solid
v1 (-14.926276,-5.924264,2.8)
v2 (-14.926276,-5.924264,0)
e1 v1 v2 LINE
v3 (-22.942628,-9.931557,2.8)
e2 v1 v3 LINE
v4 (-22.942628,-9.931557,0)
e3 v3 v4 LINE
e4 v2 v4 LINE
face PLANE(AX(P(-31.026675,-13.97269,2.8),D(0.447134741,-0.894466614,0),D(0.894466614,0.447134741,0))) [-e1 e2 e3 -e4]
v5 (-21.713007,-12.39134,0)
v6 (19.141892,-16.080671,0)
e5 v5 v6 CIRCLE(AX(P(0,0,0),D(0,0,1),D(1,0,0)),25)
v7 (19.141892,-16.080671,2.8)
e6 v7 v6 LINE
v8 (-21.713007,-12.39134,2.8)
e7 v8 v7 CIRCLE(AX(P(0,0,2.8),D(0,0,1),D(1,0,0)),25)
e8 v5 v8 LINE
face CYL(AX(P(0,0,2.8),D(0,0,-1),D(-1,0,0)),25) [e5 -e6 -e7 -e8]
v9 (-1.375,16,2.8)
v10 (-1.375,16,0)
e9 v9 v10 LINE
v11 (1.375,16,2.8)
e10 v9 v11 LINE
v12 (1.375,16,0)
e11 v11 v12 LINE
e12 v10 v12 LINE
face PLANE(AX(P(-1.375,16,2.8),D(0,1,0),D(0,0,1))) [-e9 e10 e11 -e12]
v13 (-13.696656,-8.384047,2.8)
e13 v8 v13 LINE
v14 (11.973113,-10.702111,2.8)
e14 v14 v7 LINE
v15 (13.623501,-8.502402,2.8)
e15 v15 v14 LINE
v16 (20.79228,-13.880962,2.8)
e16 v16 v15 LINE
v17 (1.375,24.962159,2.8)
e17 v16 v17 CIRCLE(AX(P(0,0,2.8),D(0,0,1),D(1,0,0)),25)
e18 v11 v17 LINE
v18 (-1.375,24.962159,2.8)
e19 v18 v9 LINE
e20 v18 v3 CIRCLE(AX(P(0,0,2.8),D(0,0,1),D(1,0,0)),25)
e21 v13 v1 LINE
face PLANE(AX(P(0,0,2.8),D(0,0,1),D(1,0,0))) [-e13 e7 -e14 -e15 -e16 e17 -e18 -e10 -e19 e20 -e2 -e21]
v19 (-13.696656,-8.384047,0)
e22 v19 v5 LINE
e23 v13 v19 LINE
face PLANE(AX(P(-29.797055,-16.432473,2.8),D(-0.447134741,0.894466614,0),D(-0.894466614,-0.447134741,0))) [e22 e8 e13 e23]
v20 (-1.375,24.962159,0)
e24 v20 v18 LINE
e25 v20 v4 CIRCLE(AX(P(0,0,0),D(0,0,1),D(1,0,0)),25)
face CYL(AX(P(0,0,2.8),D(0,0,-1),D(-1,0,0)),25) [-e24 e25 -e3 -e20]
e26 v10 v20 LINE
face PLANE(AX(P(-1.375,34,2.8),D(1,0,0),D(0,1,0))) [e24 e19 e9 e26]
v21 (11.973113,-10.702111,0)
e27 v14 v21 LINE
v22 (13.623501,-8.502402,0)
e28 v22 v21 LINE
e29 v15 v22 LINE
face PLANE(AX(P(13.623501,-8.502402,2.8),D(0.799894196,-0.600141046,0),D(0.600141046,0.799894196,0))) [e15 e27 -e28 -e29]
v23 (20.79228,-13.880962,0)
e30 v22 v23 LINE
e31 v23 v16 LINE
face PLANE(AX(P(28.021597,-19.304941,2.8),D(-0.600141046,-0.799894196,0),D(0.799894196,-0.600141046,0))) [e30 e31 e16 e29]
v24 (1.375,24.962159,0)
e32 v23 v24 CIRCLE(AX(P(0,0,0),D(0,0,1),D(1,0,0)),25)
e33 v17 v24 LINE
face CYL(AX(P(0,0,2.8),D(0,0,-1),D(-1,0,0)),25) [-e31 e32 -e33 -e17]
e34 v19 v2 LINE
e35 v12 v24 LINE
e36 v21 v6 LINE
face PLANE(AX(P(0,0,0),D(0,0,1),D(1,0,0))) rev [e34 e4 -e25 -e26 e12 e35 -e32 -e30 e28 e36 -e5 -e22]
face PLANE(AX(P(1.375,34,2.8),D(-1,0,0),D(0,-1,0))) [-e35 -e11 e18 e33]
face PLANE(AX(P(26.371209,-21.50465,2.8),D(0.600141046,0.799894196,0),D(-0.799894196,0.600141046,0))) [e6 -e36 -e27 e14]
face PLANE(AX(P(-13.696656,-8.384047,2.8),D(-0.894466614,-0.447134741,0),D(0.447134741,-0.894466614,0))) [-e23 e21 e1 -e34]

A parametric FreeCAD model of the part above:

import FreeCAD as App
import Part
import Sketcher

V = App.Vector


def add_polygon(sketch, points):
    """Adds a closed chain of lines whose ends are joined by coincident constraints."""
    first, n = sketch.GeometryCount, len(points)
    for a, b in zip(points, points[1:] + points[:1]):
        sketch.addGeometry(Part.LineSegment(App.Vector(*a, 0), App.Vector(*b, 0)), False)
    for i in range(n):
        sketch.addConstraint(Sketcher.Constraint("Coincident", first + i, 2, first + (i + 1) % n, 1))

doc = App.newDocument("Part")
params = doc.addObject("Spreadsheet::Sheet", "Params")
for row, (alias, value) in enumerate([
    ("sketch1_diameter", "50 mm"),
    ("pad1_length", "2.8 mm"),
    ("sketch2_height", "18 mm"),
    ("sketch2_width", "2.75 mm"),
], start=1):
    params.set(f"A{row}", alias)
    params.set(f"B{row}", "=" + value)
    params.setAlias(f"B{row}", alias)

body = doc.addObject("PartDesign::Body", "Body")

sketch1 = body.newObject("Sketcher::SketchObject", "Sketch")
sketch1.AttachmentSupport = (doc.getObject("XY_Plane"), [""])
sketch1.MapMode = "FlatFace"
sketch1.addGeometry(Part.Circle(V(0, 0, 0), V(0, 0, 1), 25), False)
sketch1.addConstraint(Sketcher.Constraint("Coincident", 0, 3, -1, 1))
sketch1.addConstraint(Sketcher.Constraint("Diameter", 0, 50.0))
sketch1.setExpression("Constraints[1]", "Params.sketch1_diameter")
pad1 = body.newObject("PartDesign::Pad", "Pad")
pad1.Profile = sketch1
pad1.setExpression("Length", "Params.pad1_length")

sketch2 = body.newObject("Sketcher::SketchObject", "Sketch001")
sketch2.AttachmentSupport = (doc.getObject("XY_Plane"), [""])
sketch2.MapMode = "FlatFace"
add_polygon(sketch2, [(-1.4, 34), (-1.4, 16), (1.4, 16), (1.4, 34)])
sketch2.addConstraint(Sketcher.Constraint("Vertical", 0))
sketch2.addConstraint(Sketcher.Constraint("Horizontal", 1))
sketch2.addConstraint(Sketcher.Constraint("Vertical", 2))
sketch2.addConstraint(Sketcher.Constraint("Horizontal", 3))
sketch2.addConstraint(Sketcher.Constraint("DistanceY", 0, 2, 0, 1, 18.0))
sketch2.addConstraint(Sketcher.Constraint("DistanceY", -1, 1, 0, 2, 16.0))
sketch2.addConstraint(Sketcher.Constraint("DistanceX", 1, 1, 1, 2, 2.75))
sketch2.addConstraint(Sketcher.Constraint("DistanceX", 0, 2, -1, 1, 1.375))
sketch2.setExpression("Constraints[8]", "Params.sketch2_height")
sketch2.setExpression("Constraints[10]", "Params.sketch2_width")
pocket1 = body.newObject("PartDesign::Pocket", "Pocket")
pocket1.Profile = sketch2
pocket1.Type = "ThroughAll"
pocket1.Reversed = True
doc.recompute()

polarpattern = body.newObject("PartDesign::PolarPattern", "PolarPattern")
polarpattern.Originals = [pocket1]
polarpattern.Axis = (doc.getObject("Z_Axis"), [""])
polarpattern.Angle = 233.12
polarpattern.Occurrences = 3
body.Tip = polarpattern

doc.recompute()
